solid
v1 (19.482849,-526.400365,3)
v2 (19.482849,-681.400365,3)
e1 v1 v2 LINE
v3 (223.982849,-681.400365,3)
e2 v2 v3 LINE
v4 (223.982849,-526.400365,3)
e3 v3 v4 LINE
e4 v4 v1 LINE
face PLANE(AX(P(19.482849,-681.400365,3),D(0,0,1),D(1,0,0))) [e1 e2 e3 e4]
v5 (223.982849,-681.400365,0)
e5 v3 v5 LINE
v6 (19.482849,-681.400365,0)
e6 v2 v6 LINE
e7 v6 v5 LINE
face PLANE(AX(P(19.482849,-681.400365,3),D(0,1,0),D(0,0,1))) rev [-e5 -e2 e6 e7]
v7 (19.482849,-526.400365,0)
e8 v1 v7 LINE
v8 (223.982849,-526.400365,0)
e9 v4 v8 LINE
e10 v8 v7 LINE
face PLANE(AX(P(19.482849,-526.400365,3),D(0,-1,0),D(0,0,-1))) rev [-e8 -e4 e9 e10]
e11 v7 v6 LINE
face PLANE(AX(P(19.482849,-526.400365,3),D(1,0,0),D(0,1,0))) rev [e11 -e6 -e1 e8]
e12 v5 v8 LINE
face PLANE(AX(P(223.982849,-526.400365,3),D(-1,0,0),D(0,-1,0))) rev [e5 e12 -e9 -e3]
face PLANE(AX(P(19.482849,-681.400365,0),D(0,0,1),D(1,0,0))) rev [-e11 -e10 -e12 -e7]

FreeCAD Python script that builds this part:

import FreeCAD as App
import Part
import Sketcher

V = App.Vector
Q = App.Units.Quantity


def add_polygon(sketch, points):
    """Adds a closed chain of lines whose ends are joined by coincident constraints."""
    first, n = sketch.GeometryCount, len(points)
    for a, b in zip(points, points[1:] + points[:1]):
        sketch.addGeometry(Part.LineSegment(App.Vector(*a, 0), App.Vector(*b, 0)), False)
    for i in range(n):
        sketch.addConstraint(Sketcher.Constraint("Coincident", first + i, 2, first + (i + 1) % n, 1))

doc = App.newDocument("Part")
params = doc.addObject("Spreadsheet::Sheet", "Params")
for row, (alias, value) in enumerate([
    ("sketch1_height", "155 mm"),
    ("sketch1_width", "204.5 mm"),
    ("pad1_length", "3 mm"),
], start=1):
    params.set(f"A{row}", alias)
    params.set(f"B{row}", "=" + value)
    params.setAlias(f"B{row}", alias)

body = doc.addObject("PartDesign::Body", "Body")

sketch1 = body.newObject("Sketcher::SketchObject", "Sketch")
sketch1.AttachmentSupport = (doc.getObject("XY_Plane"), [""])
sketch1.MapMode = "FlatFace"
add_polygon(sketch1, [(19.482849, -526.400365), (19.482849, -681.400365), (223.982849, -681.400365), (223.982849, -526.400365)])
sketch1.addConstraint([
    Sketcher.Constraint("Vertical", 0),
    Sketcher.Constraint("Horizontal", 1),
    Sketcher.Constraint("Vertical", 2),
    Sketcher.Constraint("Horizontal", 3),
    Sketcher.Constraint("DistanceY", 0, 2, 0, 1, Q("155 mm")),
    Sketcher.Constraint("DistanceX", 1, 1, 1, 2, Q("204.5 mm")),
    Sketcher.Constraint("DistanceX", -1, 1, 0, 2, Q("19.482849 mm")),
    Sketcher.Constraint("DistanceY", 0, 2, -1, 1, Q("681.400365 mm")),
])
sketch1.setExpression("Constraints[8]", "Params.sketch1_height")
sketch1.setExpression("Constraints[9]", "Params.sketch1_width")
pad1 = body.newObject("PartDesign::Pad", "Pad")
pad1.Profile = sketch1
pad1.setExpression("Length", "Params.pad1_length")

doc.recompute()
